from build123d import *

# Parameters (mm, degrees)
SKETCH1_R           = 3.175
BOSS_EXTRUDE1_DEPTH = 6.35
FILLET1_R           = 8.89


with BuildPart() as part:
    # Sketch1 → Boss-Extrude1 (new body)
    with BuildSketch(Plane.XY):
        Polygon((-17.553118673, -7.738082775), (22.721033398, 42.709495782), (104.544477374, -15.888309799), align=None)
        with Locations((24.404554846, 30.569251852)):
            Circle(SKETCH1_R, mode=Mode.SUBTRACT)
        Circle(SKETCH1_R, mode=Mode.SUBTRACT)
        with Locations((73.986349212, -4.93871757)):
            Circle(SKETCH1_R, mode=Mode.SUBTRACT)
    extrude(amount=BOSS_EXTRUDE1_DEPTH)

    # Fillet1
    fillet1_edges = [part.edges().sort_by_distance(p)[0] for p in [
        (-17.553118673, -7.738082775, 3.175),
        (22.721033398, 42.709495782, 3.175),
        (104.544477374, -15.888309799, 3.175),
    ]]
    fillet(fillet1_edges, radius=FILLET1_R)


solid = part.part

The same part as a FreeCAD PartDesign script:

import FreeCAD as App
import Part
import Sketcher

V = App.Vector
Q = App.Units.Quantity


def edges_at(feature, points):
    """Names of the edges that pass closest to the given points."""
    edges = feature.Shape.Edges
    near = lambda p: min(range(len(edges)), key=lambda i: edges[i].distToShape(Part.Vertex(*p))[0])
    return sorted({f"Edge{near(p) + 1}" for p in points})


def add_polygon(sketch, points):
    """Adds a closed chain of lines whose ends are joined by coincident constraints."""
    first, n = sketch.GeometryCount, len(points)
    for a, b in zip(points, points[1:] + points[:1]):
        sketch.addGeometry(Part.LineSegment(App.Vector(*a, 0), App.Vector(*b, 0)), False)
    for i in range(n):
        sketch.addConstraint(Sketcher.Constraint("Coincident", first + i, 2, first + (i + 1) % n, 1))

doc = App.newDocument("Part")
body = doc.addObject("PartDesign::Body", "Body")

# Sketch on XY plane
sketch1 = doc.addObject("Sketcher::SketchObject", "Sketch")
body.addObject(sketch1)
sketch1.AttachmentSupport = (doc.XY_Plane, [""])
sketch1.MapMode = "FlatFace"
add_polygon(sketch1, [(22.7, 42.7), (-17.6, -7.7), (104.5, -15.9)])  # lines 0-2
sketch1.addGeometry(Part.Circle(V(74, -4.9, 0), V(0, 0, 1), 3.2), False)  # 3
sketch1.addGeometry(Part.Circle(V(0, 0, 0), V(0, 0, 1), 3.2), False)  # 4
sketch1.addGeometry(Part.Circle(V(24.4, 30.6, 0), V(0, 0, 1), 3.2), False)  # 5
sketch1.addConstraint(Sketcher.Constraint("Coincident", 4, 3, -1, 1))
sketch1.addConstraint(Sketcher.Constraint("Equal", 3, 4))
sketch1.addConstraint(Sketcher.Constraint("Equal", 4, 5))
sketch1.addConstraint(Sketcher.Constraint("Diameter", 3, Q("0.25 in")))
sketch1.addConstraint(Sketcher.Constraint("DistanceX", -1, 1, 3, 3, 73.986349))
sketch1.addConstraint(Sketcher.Constraint("DistanceY", -1, 1, 5, 3, 30.569252))
sketch1.addConstraint(Sketcher.Constraint("DistanceX", 0, 2, -1, 1, 17.553119))
sketch1.addConstraint(Sketcher.Constraint("DistanceY", 1, 2, -1, 1, 15.88831))
sketch1.addConstraint(Sketcher.Constraint("DistanceY", 3, 3, 5, 3, 35.507969))
sketch1.addConstraint(Sketcher.Constraint("DistanceX", 3, 3, 1, 2, 30.558128))
sketch1.addConstraint(Sketcher.Constraint("DistanceX", 2, 2, 5, 3, 1.683521))
sketch1.addConstraint(Sketcher.Constraint("DistanceY", 0, 2, 2, 2, 50.447579))
sketch1.addConstraint(Sketcher.Constraint("Distance", 0, 64.552037))
sketch1.addConstraint(Sketcher.Constraint("Distance", 1, 122.369315))
pad1 = doc.addObject("PartDesign::Pad", "Pad")
body.addObject(pad1)
pad1.Profile = sketch1
pad1.Length = Q("0.25 in")
doc.recompute()

fillet = doc.addObject("PartDesign::Fillet", "Fillet")
body.addObject(fillet)
fillet.Base = (pad1, edges_at(pad1, [(-17.553, -7.738, 3.175), (22.721, 42.709, 3.175), (104.544, -15.888, 3.175)]))
fillet.Radius = Q("0.35 in")

doc.recompute()
